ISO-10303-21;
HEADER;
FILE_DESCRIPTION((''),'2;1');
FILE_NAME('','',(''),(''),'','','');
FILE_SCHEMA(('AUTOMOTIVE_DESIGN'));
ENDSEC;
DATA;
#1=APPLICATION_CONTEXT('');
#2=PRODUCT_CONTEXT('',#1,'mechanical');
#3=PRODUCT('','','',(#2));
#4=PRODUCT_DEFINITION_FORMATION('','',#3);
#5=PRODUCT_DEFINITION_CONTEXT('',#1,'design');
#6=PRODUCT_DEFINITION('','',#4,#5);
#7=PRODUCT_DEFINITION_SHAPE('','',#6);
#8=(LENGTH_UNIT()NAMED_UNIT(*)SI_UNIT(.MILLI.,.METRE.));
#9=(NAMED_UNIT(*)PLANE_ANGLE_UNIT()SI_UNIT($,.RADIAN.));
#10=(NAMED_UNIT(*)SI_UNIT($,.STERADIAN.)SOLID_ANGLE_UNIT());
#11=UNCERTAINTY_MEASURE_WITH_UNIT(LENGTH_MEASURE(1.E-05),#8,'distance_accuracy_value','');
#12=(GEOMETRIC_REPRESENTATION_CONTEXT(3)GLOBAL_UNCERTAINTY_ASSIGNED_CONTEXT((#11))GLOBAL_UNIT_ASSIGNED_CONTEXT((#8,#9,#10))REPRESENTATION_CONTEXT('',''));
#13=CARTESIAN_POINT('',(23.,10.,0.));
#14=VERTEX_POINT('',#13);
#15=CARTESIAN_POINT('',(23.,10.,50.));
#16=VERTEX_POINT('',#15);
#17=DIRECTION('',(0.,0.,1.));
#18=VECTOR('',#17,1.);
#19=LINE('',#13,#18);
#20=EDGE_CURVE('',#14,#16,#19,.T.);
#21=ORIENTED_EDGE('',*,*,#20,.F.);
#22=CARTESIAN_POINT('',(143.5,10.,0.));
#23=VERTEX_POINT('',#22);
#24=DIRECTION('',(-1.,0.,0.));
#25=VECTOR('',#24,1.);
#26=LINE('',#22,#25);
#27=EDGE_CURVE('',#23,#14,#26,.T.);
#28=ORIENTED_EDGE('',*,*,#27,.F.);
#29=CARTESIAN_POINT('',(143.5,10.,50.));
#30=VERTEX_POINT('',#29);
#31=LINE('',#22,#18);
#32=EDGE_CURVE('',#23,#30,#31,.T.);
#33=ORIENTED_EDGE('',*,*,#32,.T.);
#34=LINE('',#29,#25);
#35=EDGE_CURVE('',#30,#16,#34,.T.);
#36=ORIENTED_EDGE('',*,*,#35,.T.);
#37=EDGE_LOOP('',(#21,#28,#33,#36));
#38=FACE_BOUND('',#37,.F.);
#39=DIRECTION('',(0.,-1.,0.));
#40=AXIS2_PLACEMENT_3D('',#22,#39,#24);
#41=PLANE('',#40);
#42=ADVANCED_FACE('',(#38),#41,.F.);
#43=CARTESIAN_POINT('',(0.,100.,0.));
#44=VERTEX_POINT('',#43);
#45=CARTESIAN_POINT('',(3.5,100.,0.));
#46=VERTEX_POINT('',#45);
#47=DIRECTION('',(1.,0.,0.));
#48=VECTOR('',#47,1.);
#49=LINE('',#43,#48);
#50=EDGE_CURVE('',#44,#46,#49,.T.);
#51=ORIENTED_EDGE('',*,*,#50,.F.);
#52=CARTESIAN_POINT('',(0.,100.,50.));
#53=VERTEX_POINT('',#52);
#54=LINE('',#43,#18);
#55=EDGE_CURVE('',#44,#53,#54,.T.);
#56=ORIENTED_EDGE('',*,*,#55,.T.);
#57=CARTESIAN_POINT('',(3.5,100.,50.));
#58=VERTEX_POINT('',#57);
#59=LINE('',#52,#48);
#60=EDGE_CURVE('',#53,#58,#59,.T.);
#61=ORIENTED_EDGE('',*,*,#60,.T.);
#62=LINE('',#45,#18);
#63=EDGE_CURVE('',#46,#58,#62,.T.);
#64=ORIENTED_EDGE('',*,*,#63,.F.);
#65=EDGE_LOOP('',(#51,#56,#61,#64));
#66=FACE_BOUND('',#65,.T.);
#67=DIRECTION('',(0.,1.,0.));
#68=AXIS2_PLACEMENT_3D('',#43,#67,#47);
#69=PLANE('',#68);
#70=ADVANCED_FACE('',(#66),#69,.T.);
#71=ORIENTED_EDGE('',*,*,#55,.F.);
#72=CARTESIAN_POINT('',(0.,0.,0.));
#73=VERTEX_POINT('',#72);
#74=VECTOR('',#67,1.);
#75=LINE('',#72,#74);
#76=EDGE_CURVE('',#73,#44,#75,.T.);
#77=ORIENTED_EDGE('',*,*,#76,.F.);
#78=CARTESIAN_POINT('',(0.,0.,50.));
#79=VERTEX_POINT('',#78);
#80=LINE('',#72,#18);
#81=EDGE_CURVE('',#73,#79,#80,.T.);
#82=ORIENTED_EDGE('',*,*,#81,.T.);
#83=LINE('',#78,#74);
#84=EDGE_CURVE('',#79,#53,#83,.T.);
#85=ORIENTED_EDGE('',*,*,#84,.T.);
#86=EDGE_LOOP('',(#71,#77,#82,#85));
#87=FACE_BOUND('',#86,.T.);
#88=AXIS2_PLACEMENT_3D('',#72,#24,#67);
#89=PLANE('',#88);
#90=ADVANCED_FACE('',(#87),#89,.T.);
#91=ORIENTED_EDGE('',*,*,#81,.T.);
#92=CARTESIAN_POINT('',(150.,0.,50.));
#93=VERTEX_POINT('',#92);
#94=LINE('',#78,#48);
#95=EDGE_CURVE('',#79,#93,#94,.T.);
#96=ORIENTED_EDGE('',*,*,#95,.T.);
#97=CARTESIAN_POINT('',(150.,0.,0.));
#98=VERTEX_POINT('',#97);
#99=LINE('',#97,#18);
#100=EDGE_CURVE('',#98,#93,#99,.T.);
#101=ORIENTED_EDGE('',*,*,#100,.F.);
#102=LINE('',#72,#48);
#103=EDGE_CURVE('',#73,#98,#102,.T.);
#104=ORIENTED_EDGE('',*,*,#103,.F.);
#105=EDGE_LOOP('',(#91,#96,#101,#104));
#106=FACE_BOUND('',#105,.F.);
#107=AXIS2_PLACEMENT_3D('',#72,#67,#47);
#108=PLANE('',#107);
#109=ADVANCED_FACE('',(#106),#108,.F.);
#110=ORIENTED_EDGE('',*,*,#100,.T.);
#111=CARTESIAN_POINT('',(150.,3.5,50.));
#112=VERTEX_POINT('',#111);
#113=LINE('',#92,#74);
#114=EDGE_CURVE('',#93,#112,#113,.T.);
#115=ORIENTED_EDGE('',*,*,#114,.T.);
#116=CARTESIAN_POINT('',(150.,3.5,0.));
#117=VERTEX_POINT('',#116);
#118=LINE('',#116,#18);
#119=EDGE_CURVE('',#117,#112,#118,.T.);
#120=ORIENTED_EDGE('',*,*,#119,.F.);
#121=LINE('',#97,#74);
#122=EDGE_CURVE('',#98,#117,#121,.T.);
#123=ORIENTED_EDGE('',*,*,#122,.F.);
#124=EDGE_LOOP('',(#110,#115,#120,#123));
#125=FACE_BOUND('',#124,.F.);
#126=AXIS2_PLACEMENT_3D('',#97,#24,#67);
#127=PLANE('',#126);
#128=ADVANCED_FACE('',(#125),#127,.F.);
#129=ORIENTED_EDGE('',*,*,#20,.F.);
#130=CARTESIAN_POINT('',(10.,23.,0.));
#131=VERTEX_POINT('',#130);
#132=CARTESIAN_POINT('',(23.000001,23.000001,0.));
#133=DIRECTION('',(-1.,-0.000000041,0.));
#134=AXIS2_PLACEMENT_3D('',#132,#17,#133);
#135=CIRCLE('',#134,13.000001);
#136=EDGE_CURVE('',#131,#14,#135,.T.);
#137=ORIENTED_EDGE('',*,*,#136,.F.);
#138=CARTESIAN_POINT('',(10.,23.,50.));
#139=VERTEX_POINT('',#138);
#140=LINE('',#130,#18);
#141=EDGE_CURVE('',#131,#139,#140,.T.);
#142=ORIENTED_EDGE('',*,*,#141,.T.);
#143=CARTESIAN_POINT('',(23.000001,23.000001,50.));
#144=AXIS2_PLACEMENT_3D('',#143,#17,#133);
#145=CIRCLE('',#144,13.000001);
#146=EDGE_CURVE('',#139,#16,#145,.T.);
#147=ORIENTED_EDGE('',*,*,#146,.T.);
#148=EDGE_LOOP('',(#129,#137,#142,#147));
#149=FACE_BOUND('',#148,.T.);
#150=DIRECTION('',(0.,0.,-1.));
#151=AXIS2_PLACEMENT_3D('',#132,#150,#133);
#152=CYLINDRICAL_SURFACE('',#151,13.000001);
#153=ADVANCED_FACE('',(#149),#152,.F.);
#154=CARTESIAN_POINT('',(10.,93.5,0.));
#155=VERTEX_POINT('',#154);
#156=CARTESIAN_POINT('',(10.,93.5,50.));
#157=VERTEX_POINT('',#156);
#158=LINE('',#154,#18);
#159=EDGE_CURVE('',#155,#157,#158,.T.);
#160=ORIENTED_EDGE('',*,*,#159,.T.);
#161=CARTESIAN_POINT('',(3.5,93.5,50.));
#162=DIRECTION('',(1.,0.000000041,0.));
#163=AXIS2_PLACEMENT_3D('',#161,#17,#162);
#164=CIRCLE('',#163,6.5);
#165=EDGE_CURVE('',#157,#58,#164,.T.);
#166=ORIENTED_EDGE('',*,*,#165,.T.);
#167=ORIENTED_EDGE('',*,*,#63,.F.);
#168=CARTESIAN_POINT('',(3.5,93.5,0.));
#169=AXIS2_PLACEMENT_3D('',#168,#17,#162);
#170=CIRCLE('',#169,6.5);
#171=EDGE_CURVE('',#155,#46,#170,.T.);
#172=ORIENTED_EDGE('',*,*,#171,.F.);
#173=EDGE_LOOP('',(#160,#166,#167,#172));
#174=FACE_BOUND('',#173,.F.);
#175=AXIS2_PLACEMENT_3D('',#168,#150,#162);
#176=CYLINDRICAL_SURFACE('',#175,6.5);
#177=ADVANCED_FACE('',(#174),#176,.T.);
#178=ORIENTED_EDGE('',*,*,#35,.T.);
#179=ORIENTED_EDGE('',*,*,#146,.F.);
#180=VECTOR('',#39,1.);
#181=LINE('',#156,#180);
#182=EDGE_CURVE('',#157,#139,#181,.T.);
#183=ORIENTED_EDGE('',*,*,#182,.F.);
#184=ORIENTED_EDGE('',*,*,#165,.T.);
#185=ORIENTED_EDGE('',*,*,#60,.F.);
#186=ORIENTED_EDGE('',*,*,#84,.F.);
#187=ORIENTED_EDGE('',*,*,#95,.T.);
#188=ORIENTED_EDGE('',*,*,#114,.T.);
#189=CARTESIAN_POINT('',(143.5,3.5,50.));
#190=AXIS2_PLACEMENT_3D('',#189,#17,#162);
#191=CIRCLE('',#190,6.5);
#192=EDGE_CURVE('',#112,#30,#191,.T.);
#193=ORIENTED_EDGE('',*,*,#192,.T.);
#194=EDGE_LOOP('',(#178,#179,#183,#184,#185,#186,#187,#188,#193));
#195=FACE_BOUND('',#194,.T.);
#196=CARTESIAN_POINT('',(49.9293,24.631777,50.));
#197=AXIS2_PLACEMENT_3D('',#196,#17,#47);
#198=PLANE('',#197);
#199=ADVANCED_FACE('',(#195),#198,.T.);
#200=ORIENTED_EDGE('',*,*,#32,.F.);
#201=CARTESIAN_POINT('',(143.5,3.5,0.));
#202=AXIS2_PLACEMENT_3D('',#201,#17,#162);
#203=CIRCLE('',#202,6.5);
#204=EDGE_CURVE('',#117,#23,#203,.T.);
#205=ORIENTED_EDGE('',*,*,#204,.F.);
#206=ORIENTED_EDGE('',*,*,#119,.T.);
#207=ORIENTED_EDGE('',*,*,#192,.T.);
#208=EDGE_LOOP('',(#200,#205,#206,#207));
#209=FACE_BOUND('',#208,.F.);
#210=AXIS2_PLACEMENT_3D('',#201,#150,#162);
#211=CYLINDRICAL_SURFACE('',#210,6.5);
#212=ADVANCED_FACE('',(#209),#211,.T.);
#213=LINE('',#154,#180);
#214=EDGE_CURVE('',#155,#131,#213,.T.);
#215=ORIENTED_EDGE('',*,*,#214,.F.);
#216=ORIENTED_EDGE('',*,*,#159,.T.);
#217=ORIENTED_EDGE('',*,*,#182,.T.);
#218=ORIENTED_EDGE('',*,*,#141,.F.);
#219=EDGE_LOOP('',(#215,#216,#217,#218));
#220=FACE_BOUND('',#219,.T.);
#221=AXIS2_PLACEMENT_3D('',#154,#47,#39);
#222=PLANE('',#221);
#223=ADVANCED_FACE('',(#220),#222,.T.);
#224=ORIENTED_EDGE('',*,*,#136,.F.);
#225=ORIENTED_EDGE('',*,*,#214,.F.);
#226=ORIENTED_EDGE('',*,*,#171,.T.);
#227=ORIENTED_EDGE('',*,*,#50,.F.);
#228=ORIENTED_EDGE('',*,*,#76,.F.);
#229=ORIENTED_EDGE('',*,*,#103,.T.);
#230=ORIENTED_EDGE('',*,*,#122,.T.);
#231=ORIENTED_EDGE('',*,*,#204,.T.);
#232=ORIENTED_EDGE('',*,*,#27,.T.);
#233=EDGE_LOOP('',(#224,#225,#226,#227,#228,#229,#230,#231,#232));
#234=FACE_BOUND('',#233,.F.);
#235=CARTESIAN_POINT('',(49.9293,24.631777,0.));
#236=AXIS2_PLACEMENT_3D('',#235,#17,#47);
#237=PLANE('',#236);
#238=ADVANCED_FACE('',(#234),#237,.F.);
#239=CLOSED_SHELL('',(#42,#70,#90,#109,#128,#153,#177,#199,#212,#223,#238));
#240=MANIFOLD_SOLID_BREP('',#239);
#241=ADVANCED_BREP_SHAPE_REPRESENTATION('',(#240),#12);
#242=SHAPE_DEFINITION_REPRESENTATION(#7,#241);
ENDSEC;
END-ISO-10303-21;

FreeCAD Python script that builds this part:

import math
import FreeCAD as App
import Part
import Sketcher
from FreeCAD import Vector
Q = App.Units.Quantity

doc = App.newDocument("Part")
params = doc.addObject("Spreadsheet::Sheet", "Params")
for row, (alias, value) in enumerate([
    ("sketch1_radius", "13.000001 mm"),
    ("sketch1_radius2", "6.5 mm"),
    ("sketch1_width", "150 mm"),
    ("sketch1_height", "100 mm"),
    ("sketch1_width2", "120.5 mm"),
    ("pad1_length", "50 mm"),
], start=1):
    params.set(f"A{row}", alias)
    params.set(f"B{row}", "=" + value)
    params.setAlias(f"B{row}", alias)

body = doc.addObject("PartDesign::Body", "Body")

sketch1 = body.newObject("Sketcher::SketchObject", "Sketch")
sketch1.AttachmentSupport = (doc.getObject("XY_Plane"), [""])
sketch1.MapMode = "FlatFace"
sketch1.addGeometry([
    Part.LineSegment(Vector(0, 0, 0), Vector(150, 0, 0)),
    Part.LineSegment(Vector(150, 0, 0), Vector(150, 3.5, 0)),
    Part.ArcOfCircle(Part.Circle(Vector(143.5, 3.5, 0), Vector(0, 0, 1), 6.5), math.radians(0.000002), math.radians(89.999998)),
    Part.LineSegment(Vector(143.5, 10, 0), Vector(23, 10, 0)),
    Part.ArcOfCircle(Part.Circle(Vector(23.000001, 23.000001, 0), Vector(0, 0, 1), 13.000001), math.radians(-179.999998), math.radians(-90.000002)),
    Part.LineSegment(Vector(10, 23, 0), Vector(10, 93.5, 0)),
    Part.ArcOfCircle(Part.Circle(Vector(3.5, 93.5, 0), Vector(0, 0, 1), 6.5), math.radians(0.000002), math.radians(89.999998)),
    Part.LineSegment(Vector(3.5, 100, 0), Vector(0, 100, 0)),
    Part.LineSegment(Vector(0, 100, 0), Vector(0, 0, 0)),
], False)
sketch1.addConstraint([
    Sketcher.Constraint("Coincident", 0, 2, 1, 1),
    Sketcher.Constraint("Tangent", 1, 2, 2, 1),
    Sketcher.Constraint("Tangent", 2, 2, 3, 1),
    Sketcher.Constraint("Tangent", 3, 2, 4, 2),
    Sketcher.Constraint("Tangent", 4, 1, 5, 1),
    Sketcher.Constraint("Tangent", 5, 2, 6, 1),
    Sketcher.Constraint("Tangent", 6, 2, 7, 1),
    Sketcher.Constraint("Coincident", 7, 2, 8, 1),
    Sketcher.Constraint("Coincident", 8, 2, 0, 1),
    Sketcher.Constraint("Horizontal", 0),
    Sketcher.Constraint("Vertical", 1),
    Sketcher.Constraint("Horizontal", 3),
    Sketcher.Constraint("Vertical", 5),
    Sketcher.Constraint("Horizontal", 7),
    Sketcher.Constraint("Vertical", 8),
    Sketcher.Constraint("Coincident", 8, 2, -1, 1),
    Sketcher.Constraint("Equal", 2, 6),
    Sketcher.Constraint("Equal", 7, 1),
    Sketcher.Constraint("Radius", 4, Q("13.000001 mm")),
    Sketcher.Constraint("Radius", 2, Q("6.5 mm")),
    Sketcher.Constraint("DistanceX", 0, 1, 0, 2, Q("150 mm")),
    Sketcher.Constraint("DistanceY", 8, 2, 8, 1, Q("100 mm")),
    Sketcher.Constraint("DistanceX", 3, 2, 3, 1, Q("120.5 mm")),
])
sketch1.setExpression("Constraints[18]", "Params.sketch1_radius")
sketch1.setExpression("Constraints[19]", "Params.sketch1_radius2")
sketch1.setExpression("Constraints[20]", "Params.sketch1_width")
sketch1.setExpression("Constraints[21]", "Params.sketch1_height")
sketch1.setExpression("Constraints[22]", "Params.sketch1_width2")
pad1 = body.newObject("PartDesign::Pad", "Pad")
pad1.Profile = sketch1
pad1.setExpression("Length", "Params.pad1_length")

doc.recompute()
